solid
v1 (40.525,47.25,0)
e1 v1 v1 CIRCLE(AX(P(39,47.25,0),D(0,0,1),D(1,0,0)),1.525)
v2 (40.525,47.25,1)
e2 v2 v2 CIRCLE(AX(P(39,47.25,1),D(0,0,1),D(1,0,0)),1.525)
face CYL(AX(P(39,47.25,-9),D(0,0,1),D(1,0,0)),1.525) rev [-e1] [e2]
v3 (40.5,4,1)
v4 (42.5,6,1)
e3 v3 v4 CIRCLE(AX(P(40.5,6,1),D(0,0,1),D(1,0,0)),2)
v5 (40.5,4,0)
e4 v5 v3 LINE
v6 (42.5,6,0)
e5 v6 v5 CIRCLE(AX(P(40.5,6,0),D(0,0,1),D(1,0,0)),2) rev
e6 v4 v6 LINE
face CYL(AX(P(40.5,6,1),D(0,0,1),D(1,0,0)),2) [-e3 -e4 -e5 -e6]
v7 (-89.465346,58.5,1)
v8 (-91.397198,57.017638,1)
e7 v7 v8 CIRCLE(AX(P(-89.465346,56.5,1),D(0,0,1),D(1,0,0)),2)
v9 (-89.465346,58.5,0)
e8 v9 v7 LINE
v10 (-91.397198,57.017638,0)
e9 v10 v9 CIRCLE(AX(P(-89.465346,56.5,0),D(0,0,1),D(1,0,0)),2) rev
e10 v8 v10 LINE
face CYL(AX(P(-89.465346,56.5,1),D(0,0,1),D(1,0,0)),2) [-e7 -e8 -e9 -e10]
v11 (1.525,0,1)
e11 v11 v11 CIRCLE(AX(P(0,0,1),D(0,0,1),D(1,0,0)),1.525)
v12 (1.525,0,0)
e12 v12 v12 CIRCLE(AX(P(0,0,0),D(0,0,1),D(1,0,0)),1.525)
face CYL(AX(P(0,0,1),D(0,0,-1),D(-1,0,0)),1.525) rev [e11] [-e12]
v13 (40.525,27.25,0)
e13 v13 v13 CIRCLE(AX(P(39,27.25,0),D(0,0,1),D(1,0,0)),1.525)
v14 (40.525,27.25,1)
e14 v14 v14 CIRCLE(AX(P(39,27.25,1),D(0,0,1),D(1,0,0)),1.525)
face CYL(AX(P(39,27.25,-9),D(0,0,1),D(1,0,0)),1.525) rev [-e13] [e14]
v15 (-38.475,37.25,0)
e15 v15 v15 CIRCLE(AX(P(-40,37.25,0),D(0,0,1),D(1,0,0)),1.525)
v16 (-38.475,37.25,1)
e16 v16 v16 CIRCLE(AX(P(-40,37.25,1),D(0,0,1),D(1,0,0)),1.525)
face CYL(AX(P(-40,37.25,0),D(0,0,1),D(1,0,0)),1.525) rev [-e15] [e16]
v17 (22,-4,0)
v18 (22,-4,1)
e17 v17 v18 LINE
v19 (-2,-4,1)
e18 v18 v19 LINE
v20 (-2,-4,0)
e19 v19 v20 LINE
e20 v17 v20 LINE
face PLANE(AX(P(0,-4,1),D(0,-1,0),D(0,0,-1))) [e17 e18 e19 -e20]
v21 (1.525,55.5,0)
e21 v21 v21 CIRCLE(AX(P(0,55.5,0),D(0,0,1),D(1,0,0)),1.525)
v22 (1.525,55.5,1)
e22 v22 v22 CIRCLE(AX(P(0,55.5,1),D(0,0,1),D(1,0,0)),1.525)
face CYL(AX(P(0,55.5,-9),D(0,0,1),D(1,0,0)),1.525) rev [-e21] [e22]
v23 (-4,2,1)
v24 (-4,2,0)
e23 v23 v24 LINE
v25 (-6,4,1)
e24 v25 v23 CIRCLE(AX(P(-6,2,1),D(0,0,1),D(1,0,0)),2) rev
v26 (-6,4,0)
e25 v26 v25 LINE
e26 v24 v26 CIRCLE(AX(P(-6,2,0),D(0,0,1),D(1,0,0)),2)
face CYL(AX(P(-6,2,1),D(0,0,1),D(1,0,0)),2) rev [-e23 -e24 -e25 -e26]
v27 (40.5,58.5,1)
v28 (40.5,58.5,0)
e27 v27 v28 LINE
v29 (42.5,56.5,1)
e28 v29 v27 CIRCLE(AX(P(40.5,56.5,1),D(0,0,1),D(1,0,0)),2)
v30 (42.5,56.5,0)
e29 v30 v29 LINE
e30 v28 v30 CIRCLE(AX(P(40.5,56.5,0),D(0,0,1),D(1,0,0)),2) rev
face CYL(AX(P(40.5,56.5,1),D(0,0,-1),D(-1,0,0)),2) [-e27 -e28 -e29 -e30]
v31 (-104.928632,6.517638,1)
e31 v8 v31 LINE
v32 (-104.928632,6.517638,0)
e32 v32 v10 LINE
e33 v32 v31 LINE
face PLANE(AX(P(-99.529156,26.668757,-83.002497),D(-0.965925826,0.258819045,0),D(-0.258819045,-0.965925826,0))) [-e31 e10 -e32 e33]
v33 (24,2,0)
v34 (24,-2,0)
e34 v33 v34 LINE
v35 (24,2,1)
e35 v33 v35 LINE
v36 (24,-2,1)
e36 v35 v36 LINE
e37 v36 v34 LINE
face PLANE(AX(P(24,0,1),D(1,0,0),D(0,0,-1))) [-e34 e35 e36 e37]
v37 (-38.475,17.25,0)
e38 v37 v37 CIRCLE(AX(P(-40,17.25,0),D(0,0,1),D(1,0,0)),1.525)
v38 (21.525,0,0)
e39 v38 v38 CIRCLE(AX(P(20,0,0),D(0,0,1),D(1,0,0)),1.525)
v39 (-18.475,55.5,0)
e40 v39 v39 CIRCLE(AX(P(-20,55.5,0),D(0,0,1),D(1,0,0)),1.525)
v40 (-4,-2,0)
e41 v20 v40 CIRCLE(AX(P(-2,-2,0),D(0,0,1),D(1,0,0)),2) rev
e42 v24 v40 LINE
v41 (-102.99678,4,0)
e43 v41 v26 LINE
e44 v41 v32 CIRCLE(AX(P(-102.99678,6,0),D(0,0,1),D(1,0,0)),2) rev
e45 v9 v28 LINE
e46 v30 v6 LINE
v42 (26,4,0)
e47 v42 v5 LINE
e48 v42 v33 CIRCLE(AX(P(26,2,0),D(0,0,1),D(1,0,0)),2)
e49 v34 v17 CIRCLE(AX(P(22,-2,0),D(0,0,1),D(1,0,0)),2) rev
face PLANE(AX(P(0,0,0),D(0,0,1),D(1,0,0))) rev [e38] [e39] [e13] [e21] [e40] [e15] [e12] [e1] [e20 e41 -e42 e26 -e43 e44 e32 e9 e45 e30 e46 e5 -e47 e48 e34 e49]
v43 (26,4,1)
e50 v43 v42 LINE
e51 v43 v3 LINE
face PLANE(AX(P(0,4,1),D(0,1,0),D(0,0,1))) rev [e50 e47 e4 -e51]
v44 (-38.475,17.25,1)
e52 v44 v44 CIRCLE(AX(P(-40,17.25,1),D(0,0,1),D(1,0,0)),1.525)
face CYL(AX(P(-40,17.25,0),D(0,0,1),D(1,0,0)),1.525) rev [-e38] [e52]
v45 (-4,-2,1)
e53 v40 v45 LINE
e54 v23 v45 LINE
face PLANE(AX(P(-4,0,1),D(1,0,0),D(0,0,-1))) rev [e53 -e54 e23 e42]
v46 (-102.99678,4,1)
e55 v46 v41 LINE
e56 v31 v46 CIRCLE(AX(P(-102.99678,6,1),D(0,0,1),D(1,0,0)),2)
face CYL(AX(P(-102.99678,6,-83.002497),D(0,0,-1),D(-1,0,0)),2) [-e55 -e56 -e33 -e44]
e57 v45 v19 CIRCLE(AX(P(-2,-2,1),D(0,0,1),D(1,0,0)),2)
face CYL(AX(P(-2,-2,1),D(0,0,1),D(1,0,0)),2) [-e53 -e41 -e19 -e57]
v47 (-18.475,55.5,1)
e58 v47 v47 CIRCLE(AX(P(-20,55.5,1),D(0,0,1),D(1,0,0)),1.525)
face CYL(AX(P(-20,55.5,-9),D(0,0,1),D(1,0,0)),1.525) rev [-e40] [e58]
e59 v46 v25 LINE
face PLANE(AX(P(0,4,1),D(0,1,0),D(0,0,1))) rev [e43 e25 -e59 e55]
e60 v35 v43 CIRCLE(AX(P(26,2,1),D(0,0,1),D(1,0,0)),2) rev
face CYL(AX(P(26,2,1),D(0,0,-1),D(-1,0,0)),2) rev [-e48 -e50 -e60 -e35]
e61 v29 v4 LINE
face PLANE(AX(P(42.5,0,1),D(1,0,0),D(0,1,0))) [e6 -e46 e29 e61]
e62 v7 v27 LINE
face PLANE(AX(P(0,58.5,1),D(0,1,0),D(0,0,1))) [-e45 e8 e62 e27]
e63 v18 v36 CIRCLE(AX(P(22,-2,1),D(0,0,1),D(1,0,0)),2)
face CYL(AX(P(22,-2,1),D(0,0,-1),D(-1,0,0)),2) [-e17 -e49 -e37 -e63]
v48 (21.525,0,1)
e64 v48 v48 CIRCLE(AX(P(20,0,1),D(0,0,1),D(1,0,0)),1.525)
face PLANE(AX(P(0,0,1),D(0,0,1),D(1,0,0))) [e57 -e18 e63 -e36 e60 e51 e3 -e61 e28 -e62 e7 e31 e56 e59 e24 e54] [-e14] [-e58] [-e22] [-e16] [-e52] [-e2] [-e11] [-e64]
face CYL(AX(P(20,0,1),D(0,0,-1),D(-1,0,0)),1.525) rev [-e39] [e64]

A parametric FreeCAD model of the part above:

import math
import FreeCAD as App
import Part
import Sketcher

V = App.Vector
Q = App.Units.Quantity


def edges_at(feature, points):
    """Names of the edges that pass closest to the given points."""
    edges = feature.Shape.Edges
    near = lambda p: min(range(len(edges)), key=lambda i: edges[i].distToShape(Part.Vertex(*p))[0])
    return sorted({f"Edge{near(p) + 1}" for p in points})

doc = App.newDocument("Part")
params = doc.addObject("Spreadsheet::Sheet", "Params")
for row, (alias, value) in enumerate([
    ("sketch1_diameter", "3.05 mm"),
    ("sketch1_width", "41 mm"),
    ("sketch1_width2", "28 mm"),
    ("sketch1_height", "8 mm"),
    ("sketch1_width3", "87.5 mm"),
    ("pad1_length", "1 mm"),
    ("sketch2_diameter", "3.05 mm"),
    ("pocket1_length", "1 mm"),
    ("fillet_radius", "2 mm"),
    ("sketch3_diameter", "3.05 mm"),
    ("pocket2_length", "10 mm"),
    ("sketch4_diameter", "3.05 mm"),
    ("pocket3_length", "10 mm"),
    ("sketch5_radius", "2 mm"),
    ("sketch5_width", "48 mm"),
    ("sketch5_height", "50.5 mm"),
    ("pad2_length", "1 mm"),
    ("fillet2_radius", "2 mm"),
], start=1):
    params.set(f"A{row}", alias)
    params.set(f"B{row}", "=" + value)
    params.setAlias(f"B{row}", alias)

body = doc.addObject("PartDesign::Body", "Body")

sketch1 = doc.addObject("Sketcher::SketchObject", "Sketch")
body.addObject(sketch1)
sketch1.AttachmentSupport = (doc.XY_Plane, [""])
sketch1.MapMode = "FlatFace"
sketch1.addGeometry([
    Part.LineSegment(V(42.5, 4, 0), V(42.5, 58.5, 0)),
    Part.LineSegment(V(42.5, 58.5, 0), V(-45, 58.5, 0)),
    Part.LineSegment(V(-45, 58.5, 0), V(-45, 4, 0)),
    Part.LineSegment(V(-45, 4, 0), V(-4, 4, 0)),
    Part.LineSegment(V(-4, 4, 0), V(-4, -4, 0)),
    Part.LineSegment(V(-4, -4, 0), V(24, -4, 0)),
    Part.LineSegment(V(24, -4, 0), V(24, 4, 0)),
    Part.LineSegment(V(24, 4, 0), V(42.5, 4, 0)),
    Part.Circle(V(0, 0, 0), V(0, 0, 1), 1.5),
    Part.Circle(V(20, 0, 0), V(0, 0, 1), 1.5),
], False)
sketch1.addConstraint([
    Sketcher.Constraint("Coincident", 0, 2, 1, 1),
    Sketcher.Constraint("Coincident", 1, 2, 2, 1),
    Sketcher.Constraint("Coincident", 2, 2, 3, 1),
    Sketcher.Constraint("Coincident", 3, 2, 4, 1),
    Sketcher.Constraint("Coincident", 4, 2, 5, 1),
    Sketcher.Constraint("Coincident", 5, 2, 6, 1),
    Sketcher.Constraint("Coincident", 6, 2, 7, 1),
    Sketcher.Constraint("Coincident", 7, 2, 0, 1),
    Sketcher.Constraint("Vertical", 0),
    Sketcher.Constraint("Horizontal", 1),
    Sketcher.Constraint("Vertical", 2),
    Sketcher.Constraint("Horizontal", 3),
    Sketcher.Constraint("Vertical", 4),
    Sketcher.Constraint("Horizontal", 5),
    Sketcher.Constraint("Vertical", 6),
    Sketcher.Constraint("Horizontal", 7),
    Sketcher.Constraint("Coincident", 8, 3, -1, 1),
    Sketcher.Constraint("Equal", 8, 9),
    Sketcher.Constraint("PointOnObject", 9, 3, -1),
    Sketcher.Constraint("Horizontal", 3, 2, 6, 2),
    Sketcher.Constraint("Diameter", 8, 3.05),
    Sketcher.Constraint("DistanceX", 3, 1, 3, 2, 41.0),
    Sketcher.Constraint("DistanceX", 5, 1, 5, 2, 28.0),
    Sketcher.Constraint("DistanceY", 4, 2, 4, 1, 8.0),
    Sketcher.Constraint("DistanceX", 1, 2, 1, 1, 87.5),
    Sketcher.Constraint("DistanceY", 0, 1, 0, 2, 54.5),
    Sketcher.Constraint("DistanceX", -1, 1, 9, 3, 20.0),
    Sketcher.Constraint("DistanceX", 1, 2, -1, 1, 45.0),
    Sketcher.Constraint("DistanceY", -1, 1, 2, 2, 4.0),
])
sketch1.setExpression("Constraints[20]", "Params.sketch1_diameter")
sketch1.setExpression("Constraints[21]", "Params.sketch1_width")
sketch1.setExpression("Constraints[22]", "Params.sketch1_width2")
sketch1.setExpression("Constraints[23]", "Params.sketch1_height")
sketch1.setExpression("Constraints[24]", "Params.sketch1_width3")
pad1 = doc.addObject("PartDesign::Pad", "Pad")
body.addObject(pad1)
pad1.Profile = sketch1
pad1.setExpression("Length", "Params.pad1_length")

sketch2 = doc.addObject("Sketcher::SketchObject", "Sketch001")
body.addObject(sketch2)
sketch2.AttachmentSupport = (doc.XY_Plane, [""])
sketch2.MapMode = "FlatFace"
sketch2.AttachmentOffset = App.Placement(V(0, 0, 1), App.Rotation())
sketch2.addGeometry([
    Part.Circle(V(-40, 37.2, 0), V(0, 0, 1), 1.5),
    Part.Circle(V(-40, 17.2, 0), V(0, 0, 1), 1.5),
], False)
sketch2.addConstraint([
    Sketcher.Constraint("Equal", 0, 1),
    Sketcher.Constraint("Vertical", 0, 3, 1, 3),
    Sketcher.Constraint("Diameter", 0, 3.05),
    Sketcher.Constraint("DistanceX", 0, 3, -1, 1, 40.0),
    Sketcher.Constraint("DistanceY", 1, 3, 0, 3, 20.0),
    Sketcher.Constraint("DistanceY", -1, 1, 0, 3, 37.25),
])
sketch2.setExpression("Constraints[2]", "Params.sketch2_diameter")
pocket1 = doc.addObject("PartDesign::Pocket", "Pocket")
body.addObject(pocket1)
pocket1.Profile = sketch2
pocket1.setExpression("Length", "Params.pocket1_length")
doc.recompute()

fillet = doc.addObject("PartDesign::Fillet", "Fillet")
body.addObject(fillet)
fillet.Base = (pocket1, edges_at(pocket1, [
    (42.5, 4, 0.5),
    (24, 4, 0.5),
    (24, -4, 0.5),
    (-4, -4, 0.5),
    (-4, 4, 0.5),
    (-45, 4, 0.5),
    (-45, 58.5, 0.5),
    (42.5, 58.5, 0.5),
]))
fillet.setExpression("Radius", "Params.fillet_radius")

sketch3 = doc.addObject("Sketcher::SketchObject", "Sketch002")
body.addObject(sketch3)
sketch3.AttachmentSupport = (doc.XY_Plane, [""])
sketch3.MapMode = "FlatFace"
sketch3.AttachmentOffset = App.Placement(V(0, 0, 1), App.Rotation())
sketch3.addGeometry([
    Part.Circle(V(39, 47.2, 0), V(0, 0, 1), 1.5),
    Part.Circle(V(39, 27.2, 0), V(0, 0, 1), 1.5),
], False)
sketch3.addConstraint([
    Sketcher.Constraint("Equal", 0, 1),
    Sketcher.Constraint("Vertical", 0, 3, 1, 3),
    Sketcher.Constraint("Diameter", 0, 3.05),
    Sketcher.Constraint("DistanceX", -1, 1, 0, 3, 39.0),
    Sketcher.Constraint("DistanceY", 1, 3, 0, 3, 20.0),
    Sketcher.Constraint("DistanceY", -1, 1, 0, 3, 47.25),
])
sketch3.setExpression("Constraints[2]", "Params.sketch3_diameter")
pocket2 = doc.addObject("PartDesign::Pocket", "Pocket001")
body.addObject(pocket2)
pocket2.Profile = sketch3
pocket2.setExpression("Length", "Params.pocket2_length")

sketch4 = doc.addObject("Sketcher::SketchObject", "Sketch003")
body.addObject(sketch4)
sketch4.AttachmentSupport = (doc.XY_Plane, [""])
sketch4.MapMode = "FlatFace"
sketch4.AttachmentOffset = App.Placement(V(0, 0, 1), App.Rotation())
sketch4.addGeometry([
    Part.Circle(V(-20, 55.5, 0), V(0, 0, 1), 1.5),
    Part.Circle(V(0, 55.5, 0), V(0, 0, 1), 1.5),
], False)
sketch4.addConstraint([
    Sketcher.Constraint("Equal", 0, 1),
    Sketcher.Constraint("PointOnObject", 1, 3, -2),
    Sketcher.Constraint("Horizontal", 0, 3, 1, 3),
    Sketcher.Constraint("Diameter", 0, 3.05),
    Sketcher.Constraint("DistanceX", 0, 3, -1, 1, 20.0),
    Sketcher.Constraint("DistanceY", -1, 1, 0, 3, 55.5),
])
sketch4.setExpression("Constraints[3]", "Params.sketch4_diameter")
pocket3 = doc.addObject("PartDesign::Pocket", "Pocket002")
body.addObject(pocket3)
pocket3.Profile = sketch4
pocket3.setExpression("Length", "Params.pocket3_length")

sketch5 = doc.addObject("Sketcher::SketchObject", "Sketch004")
body.addObject(sketch5)
sketch5.AttachmentSupport = (doc.XY_Plane, [""])
sketch5.MapMode = "FlatFace"
sketch5.AttachmentOffset = App.Placement(V(0, 0, 1), App.Rotation())
sketch5.addGeometry([
    Part.ArcOfCircle(Part.Circle(V(-43, 56.5, 0), V(0, 0, 1), 2), math.radians(90), math.radians(180)),
    Part.LineSegment(V(-43, 58.5, 0), V(-91, 58.5, 0)),
    Part.LineSegment(V(-91, 58.5, 0), V(-105.6, 4, 0)),
    Part.LineSegment(V(-105.6, 4, 0), V(-43, 4, 0)),
    Part.ArcOfCircle(Part.Circle(V(-43, 6, 0), V(0, 0, 1), 2), math.radians(-180), math.radians(-90)),
    Part.LineSegment(V(-45, 6, 0), V(-45, 56.5, 0)),
], False)
sketch5.addConstraint([
    Sketcher.Constraint("Tangent", 0, 1, 1, 1),
    Sketcher.Constraint("Coincident", 1, 2, 2, 1),
    Sketcher.Constraint("Coincident", 2, 2, 3, 1),
    Sketcher.Constraint("Tangent", 3, 2, 4, 2),
    Sketcher.Constraint("Tangent", 4, 1, 5, 1),
    Sketcher.Constraint("Tangent", 5, 2, 0, 2),
    Sketcher.Constraint("Horizontal", 1),
    Sketcher.Constraint("Horizontal", 3),
    Sketcher.Constraint("Vertical", 5),
    Sketcher.Constraint("Equal", 0, 4),
    Sketcher.Constraint("Radius", 0, 2.0),
    Sketcher.Constraint("DistanceX", 1, 2, 1, 1, 48.0),
    Sketcher.Constraint("Angle", 2, Q("-105 deg")),
    Sketcher.Constraint("DistanceY", 5, 1, 5, 2, 50.5),
    Sketcher.Constraint("DistanceX", 0, 3, -1, 1, 43.0),
    Sketcher.Constraint("DistanceY", -1, 1, 4, 3, 6.0),
])
sketch5.setExpression("Constraints[10]", "Params.sketch5_radius")
sketch5.setExpression("Constraints[11]", "Params.sketch5_width")
sketch5.setExpression("Constraints[13]", "Params.sketch5_height")
pad2 = doc.addObject("PartDesign::Pad", "Pad001")
body.addObject(pad2)
pad2.Profile = sketch5
pad2.setExpression("Length", "Params.pad2_length")
pad2.Reversed = True
doc.recompute()

fillet2 = doc.addObject("PartDesign::Fillet", "Fillet001")
body.addObject(fillet2)
fillet2.Base = (pad2, edges_at(pad2, [(-91, 58.5, 0.5), (-105.603, 4, 0.5)]))
fillet2.setExpression("Radius", "Params.fillet2_radius")

doc.recompute()
